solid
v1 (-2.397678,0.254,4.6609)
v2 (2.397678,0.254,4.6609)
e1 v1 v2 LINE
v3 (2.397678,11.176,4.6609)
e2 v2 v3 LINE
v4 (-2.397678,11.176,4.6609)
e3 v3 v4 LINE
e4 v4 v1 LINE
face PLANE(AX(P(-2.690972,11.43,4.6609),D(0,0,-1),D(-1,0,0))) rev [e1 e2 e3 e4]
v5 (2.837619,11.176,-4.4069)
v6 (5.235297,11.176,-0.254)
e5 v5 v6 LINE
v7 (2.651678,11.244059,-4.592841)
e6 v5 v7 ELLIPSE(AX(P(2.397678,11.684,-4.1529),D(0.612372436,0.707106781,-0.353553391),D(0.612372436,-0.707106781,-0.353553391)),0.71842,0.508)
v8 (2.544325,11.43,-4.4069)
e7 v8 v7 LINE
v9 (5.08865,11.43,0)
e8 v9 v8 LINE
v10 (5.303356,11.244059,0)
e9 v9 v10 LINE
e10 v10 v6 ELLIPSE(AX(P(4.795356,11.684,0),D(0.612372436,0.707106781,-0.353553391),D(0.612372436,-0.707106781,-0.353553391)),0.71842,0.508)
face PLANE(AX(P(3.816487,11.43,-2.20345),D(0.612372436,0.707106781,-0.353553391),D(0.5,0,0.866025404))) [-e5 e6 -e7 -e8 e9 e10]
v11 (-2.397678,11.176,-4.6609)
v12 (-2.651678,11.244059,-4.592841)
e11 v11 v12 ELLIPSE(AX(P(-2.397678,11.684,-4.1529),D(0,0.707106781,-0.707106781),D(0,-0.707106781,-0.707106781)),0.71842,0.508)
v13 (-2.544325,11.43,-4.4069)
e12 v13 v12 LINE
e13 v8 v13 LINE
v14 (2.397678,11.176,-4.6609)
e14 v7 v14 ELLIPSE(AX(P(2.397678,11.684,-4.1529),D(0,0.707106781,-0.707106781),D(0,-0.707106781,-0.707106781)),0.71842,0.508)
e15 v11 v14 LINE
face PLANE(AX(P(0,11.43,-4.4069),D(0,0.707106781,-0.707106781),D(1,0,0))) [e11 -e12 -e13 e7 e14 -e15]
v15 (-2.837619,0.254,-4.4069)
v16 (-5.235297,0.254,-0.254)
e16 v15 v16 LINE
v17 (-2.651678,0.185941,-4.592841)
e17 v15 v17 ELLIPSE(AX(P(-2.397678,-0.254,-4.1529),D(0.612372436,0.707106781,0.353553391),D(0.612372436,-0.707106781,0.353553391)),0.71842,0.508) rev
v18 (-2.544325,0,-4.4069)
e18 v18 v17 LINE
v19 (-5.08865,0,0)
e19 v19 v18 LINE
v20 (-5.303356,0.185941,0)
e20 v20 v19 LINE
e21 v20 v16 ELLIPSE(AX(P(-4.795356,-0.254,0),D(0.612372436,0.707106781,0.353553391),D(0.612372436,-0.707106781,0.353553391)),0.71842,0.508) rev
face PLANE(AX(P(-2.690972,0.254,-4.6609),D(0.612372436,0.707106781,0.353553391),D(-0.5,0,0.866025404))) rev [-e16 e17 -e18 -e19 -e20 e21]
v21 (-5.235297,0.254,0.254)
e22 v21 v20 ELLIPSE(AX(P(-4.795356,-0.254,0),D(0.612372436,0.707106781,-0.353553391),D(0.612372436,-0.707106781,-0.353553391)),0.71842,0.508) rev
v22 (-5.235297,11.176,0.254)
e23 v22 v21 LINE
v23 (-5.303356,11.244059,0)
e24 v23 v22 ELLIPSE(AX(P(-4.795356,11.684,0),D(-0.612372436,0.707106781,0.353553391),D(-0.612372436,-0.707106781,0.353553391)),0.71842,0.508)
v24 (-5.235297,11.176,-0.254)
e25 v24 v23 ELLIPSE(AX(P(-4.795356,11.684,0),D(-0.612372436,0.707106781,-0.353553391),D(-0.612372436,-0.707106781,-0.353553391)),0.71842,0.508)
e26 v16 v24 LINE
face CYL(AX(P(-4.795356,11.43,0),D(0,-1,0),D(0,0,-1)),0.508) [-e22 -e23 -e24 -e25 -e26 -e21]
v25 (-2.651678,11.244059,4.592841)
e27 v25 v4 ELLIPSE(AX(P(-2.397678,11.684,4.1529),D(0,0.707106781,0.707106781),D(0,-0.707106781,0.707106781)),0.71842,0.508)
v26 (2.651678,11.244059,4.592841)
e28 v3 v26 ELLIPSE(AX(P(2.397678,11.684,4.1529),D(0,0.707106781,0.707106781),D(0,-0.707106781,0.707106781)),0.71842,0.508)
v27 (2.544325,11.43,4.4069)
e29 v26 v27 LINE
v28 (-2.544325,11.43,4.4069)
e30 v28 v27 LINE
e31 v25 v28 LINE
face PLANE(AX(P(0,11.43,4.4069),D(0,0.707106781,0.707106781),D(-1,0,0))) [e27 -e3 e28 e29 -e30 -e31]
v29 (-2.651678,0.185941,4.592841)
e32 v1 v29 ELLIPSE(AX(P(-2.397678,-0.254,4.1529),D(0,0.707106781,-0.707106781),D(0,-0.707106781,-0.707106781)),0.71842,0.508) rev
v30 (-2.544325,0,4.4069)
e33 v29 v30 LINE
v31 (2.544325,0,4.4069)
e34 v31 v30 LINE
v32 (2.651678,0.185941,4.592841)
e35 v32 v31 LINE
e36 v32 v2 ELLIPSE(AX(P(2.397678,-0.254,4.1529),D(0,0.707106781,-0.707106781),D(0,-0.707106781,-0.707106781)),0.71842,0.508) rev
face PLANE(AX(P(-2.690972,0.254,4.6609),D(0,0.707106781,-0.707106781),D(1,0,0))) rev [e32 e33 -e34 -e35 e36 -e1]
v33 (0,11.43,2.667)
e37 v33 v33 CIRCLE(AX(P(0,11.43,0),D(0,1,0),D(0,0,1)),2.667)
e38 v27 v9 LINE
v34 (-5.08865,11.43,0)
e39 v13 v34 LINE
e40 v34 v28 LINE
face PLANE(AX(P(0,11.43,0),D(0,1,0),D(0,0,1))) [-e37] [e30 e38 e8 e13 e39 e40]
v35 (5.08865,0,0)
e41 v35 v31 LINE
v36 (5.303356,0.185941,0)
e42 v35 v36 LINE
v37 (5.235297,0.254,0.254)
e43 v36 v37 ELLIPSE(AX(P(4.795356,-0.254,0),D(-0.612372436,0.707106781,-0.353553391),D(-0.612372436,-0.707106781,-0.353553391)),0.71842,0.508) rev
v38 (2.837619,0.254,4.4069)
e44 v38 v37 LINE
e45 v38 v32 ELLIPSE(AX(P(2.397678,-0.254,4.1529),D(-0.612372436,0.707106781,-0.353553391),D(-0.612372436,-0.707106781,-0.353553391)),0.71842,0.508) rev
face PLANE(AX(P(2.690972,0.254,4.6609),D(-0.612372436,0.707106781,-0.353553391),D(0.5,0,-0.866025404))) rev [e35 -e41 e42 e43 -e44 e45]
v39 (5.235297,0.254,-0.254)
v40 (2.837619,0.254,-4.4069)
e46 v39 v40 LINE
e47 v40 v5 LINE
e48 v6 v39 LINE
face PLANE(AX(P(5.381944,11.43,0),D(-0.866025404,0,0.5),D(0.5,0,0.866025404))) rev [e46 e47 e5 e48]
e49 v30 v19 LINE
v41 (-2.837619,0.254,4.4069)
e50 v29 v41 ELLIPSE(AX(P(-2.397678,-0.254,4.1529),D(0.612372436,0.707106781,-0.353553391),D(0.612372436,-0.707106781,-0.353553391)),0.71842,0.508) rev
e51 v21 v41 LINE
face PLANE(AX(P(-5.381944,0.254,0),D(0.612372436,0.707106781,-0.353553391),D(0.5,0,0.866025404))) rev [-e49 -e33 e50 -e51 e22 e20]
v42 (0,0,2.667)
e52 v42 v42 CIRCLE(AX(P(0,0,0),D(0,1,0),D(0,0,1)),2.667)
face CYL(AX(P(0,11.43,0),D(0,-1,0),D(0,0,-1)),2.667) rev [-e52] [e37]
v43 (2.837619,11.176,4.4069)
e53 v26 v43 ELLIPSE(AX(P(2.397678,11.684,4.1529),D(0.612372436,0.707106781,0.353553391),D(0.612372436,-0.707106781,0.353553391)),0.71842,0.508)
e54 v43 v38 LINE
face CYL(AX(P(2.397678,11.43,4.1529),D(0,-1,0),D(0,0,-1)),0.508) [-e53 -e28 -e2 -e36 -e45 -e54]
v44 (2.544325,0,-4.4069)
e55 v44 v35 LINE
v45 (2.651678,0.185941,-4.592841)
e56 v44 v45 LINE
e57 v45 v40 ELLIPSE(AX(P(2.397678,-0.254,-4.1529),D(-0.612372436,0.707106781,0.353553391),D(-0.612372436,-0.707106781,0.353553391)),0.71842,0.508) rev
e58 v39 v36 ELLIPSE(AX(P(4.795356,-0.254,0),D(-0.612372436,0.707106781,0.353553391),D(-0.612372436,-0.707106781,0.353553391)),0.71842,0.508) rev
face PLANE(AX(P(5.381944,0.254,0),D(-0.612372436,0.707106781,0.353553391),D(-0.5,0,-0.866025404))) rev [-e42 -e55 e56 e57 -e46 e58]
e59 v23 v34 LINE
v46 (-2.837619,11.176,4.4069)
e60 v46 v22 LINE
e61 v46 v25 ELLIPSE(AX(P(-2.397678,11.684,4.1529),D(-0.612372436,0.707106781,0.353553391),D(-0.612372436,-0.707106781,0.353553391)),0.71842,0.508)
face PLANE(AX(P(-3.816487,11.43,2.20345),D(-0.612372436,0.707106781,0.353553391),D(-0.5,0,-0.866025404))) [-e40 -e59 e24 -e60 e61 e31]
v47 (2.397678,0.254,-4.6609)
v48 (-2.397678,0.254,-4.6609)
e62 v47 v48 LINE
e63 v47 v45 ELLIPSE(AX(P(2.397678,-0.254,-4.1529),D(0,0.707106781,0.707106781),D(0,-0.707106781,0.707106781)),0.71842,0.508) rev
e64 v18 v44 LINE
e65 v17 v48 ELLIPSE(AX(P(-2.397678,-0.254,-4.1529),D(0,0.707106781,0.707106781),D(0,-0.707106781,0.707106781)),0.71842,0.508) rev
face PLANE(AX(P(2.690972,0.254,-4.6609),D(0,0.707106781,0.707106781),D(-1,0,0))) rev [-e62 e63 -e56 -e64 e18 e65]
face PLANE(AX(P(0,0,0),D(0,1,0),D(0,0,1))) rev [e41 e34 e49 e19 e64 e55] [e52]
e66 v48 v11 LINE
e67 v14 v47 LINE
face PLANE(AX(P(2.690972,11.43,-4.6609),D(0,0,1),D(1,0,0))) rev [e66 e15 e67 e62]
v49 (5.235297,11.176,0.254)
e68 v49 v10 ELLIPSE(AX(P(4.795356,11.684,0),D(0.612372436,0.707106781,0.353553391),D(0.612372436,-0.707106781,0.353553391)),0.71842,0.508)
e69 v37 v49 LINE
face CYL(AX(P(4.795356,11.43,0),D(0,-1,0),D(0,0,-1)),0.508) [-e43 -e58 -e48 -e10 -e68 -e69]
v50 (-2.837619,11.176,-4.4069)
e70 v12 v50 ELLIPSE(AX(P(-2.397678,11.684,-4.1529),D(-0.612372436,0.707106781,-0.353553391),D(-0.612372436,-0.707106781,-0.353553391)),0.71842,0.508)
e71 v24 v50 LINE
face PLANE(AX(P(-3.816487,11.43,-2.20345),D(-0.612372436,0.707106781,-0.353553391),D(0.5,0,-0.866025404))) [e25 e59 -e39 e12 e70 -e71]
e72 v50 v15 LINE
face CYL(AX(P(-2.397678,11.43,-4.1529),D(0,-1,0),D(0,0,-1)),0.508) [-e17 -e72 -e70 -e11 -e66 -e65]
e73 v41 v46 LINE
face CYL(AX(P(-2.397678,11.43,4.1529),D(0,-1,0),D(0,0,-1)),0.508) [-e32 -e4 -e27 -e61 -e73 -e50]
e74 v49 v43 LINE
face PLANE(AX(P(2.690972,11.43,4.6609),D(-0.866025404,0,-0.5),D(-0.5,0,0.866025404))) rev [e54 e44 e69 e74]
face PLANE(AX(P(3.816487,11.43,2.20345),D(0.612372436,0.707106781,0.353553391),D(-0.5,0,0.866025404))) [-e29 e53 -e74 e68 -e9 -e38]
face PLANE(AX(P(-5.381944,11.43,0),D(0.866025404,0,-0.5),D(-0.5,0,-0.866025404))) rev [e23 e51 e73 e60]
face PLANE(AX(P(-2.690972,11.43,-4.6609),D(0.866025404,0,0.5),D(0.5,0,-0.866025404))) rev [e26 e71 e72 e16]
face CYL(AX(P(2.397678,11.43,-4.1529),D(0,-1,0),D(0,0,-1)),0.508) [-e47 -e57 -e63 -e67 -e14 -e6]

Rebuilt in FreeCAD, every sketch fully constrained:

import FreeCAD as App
import Part
import Sketcher

V = App.Vector
Q = App.Units.Quantity


def edges_at(feature, points):
    """Names of the edges that pass closest to the given points."""
    edges = feature.Shape.Edges
    near = lambda p: min(range(len(edges)), key=lambda i: edges[i].distToShape(Part.Vertex(*p))[0])
    return sorted({f"Edge{near(p) + 1}" for p in points})

doc = App.newDocument("Part")
body = doc.addObject("PartDesign::Body", "Body")

# Sketch on XZ plane
sketch1 = doc.addObject("Sketcher::SketchObject", "Sketch")
body.addObject(sketch1)
sketch1.AttachmentSupport = (doc.XZ_Plane, [""])
sketch1.MapMode = "FlatFace"
sketch1.addGeometry(Part.LineSegment(V(2.7, 4.7, 0), V(5.4, 0, 0)), False)
sketch1.addGeometry(Part.LineSegment(V(5.4, 0, 0), V(2.7, -4.7, 0)), False)
sketch1.addGeometry(Part.LineSegment(V(2.7, -4.7, 0), V(-2.7, -4.7, 0)), False)
sketch1.addGeometry(Part.LineSegment(V(-2.7, -4.7, 0), V(-5.4, 0, 0)), False)
sketch1.addGeometry(Part.LineSegment(V(-5.4, 0, 0), V(-2.7, 4.7, 0)), False)
sketch1.addGeometry(Part.LineSegment(V(-2.7, 4.7, 0), V(2.7, 4.7, 0)), False)
sketch1.addGeometry(Part.Circle(V(0, 0, 0), V(0, 0, 1), 2.7), False)
sketch1.addConstraint(Sketcher.Constraint("Coincident", 0, 2, 1, 1))
sketch1.addConstraint(Sketcher.Constraint("Coincident", 1, 2, 2, 1))
sketch1.addConstraint(Sketcher.Constraint("Coincident", 2, 2, 3, 1))
sketch1.addConstraint(Sketcher.Constraint("Coincident", 3, 2, 4, 1))
sketch1.addConstraint(Sketcher.Constraint("Coincident", 4, 2, 5, 1))
sketch1.addConstraint(Sketcher.Constraint("Coincident", 5, 2, 0, 1))
sketch1.addConstraint(Sketcher.Constraint("Horizontal", 2))
sketch1.addConstraint(Sketcher.Constraint("Horizontal", 5))
sketch1.addConstraint(Sketcher.Constraint("Coincident", 6, 3, -1, 1))
sketch1.addConstraint(Sketcher.Constraint("Symmetric", 0, 2, 3, 2, -1, 1))
sketch1.addConstraint(Sketcher.Constraint("Symmetric", 1, 2, 4, 2, -1, 1))
sketch1.addConstraint(Sketcher.Constraint("PointOnObject", 0, 2, -1))
sketch1.addConstraint(Sketcher.Constraint("Parallel", 0, 3))
sketch1.addConstraint(Sketcher.Constraint("Vertical", 2, 2, 4, 2))
sketch1.addConstraint(Sketcher.Constraint("Diameter", 6, Q("0.21 in")))
sketch1.addConstraint(Sketcher.Constraint("Angle", 0, Q("-60 deg")))
sketch1.addConstraint(Sketcher.Constraint("DistanceY", 2, 2, 4, 2, Q("0.367 in")))
sketch1.addConstraint(Sketcher.Constraint("DistanceX", 2, 2, 2, 1, 5.381944))
pad1 = doc.addObject("PartDesign::Pad", "Pad")
body.addObject(pad1)
pad1.Profile = sketch1
pad1.Length = Q("0.45 in")
pad1.Reversed = True
doc.recompute()

chamfer = doc.addObject("PartDesign::Chamfer", "Chamfer")
body.addObject(chamfer)
chamfer.Base = (pad1, edges_at(pad1, [
    (4.036, 11.43, -2.33),
    (0, 11.43, -4.661),
    (-4.036, 11.43, -2.33),
    (-4.036, 11.43, 2.33),
    (0, 11.43, 4.661),
    (-4.036, 0, 2.33),
    (-4.036, 0, -2.33),
    (0, 0, -4.661),
    (4.036, 0, -2.33),
    (4.036, 0, 2.33),
    (0, 0, 4.661),
    (4.036, 11.43, 2.33),
]))
chamfer.Size = Q("0.01 in")
doc.recompute()

fillet = doc.addObject("PartDesign::Fillet", "Fillet")
body.addObject(fillet)
fillet.Base = (chamfer, edges_at(chamfer, [
    (5.382, 5.715, 0),
    (2.691, 5.715, 4.661),
    (2.691, 5.715, -4.661),
    (-2.691, 5.715, -4.661),
    (-5.382, 5.715, 0),
    (-2.691, 5.715, 4.661),
]))
fillet.Radius = Q("0.02 in")

doc.recompute()
